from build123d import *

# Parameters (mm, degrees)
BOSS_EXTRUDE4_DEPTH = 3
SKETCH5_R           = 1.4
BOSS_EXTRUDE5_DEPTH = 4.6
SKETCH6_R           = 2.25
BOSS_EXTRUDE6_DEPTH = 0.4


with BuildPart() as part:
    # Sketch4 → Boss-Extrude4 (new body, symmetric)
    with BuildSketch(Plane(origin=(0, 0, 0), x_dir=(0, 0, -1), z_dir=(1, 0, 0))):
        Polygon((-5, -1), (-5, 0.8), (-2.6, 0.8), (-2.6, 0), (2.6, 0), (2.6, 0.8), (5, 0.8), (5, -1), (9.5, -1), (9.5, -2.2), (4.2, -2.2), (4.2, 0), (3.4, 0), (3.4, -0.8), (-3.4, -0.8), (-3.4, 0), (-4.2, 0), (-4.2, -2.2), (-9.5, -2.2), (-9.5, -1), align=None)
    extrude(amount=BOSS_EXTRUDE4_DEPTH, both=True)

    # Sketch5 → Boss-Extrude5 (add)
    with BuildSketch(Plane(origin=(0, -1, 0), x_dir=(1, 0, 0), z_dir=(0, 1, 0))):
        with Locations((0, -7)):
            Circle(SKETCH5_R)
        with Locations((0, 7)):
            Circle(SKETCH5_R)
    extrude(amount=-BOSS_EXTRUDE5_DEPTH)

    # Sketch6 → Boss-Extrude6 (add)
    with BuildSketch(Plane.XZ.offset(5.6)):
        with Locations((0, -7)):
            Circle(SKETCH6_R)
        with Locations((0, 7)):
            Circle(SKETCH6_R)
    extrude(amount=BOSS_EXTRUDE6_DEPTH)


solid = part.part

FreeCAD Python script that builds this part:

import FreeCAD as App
import Part
import Sketcher
Q = App.Units.Quantity

doc = App.newDocument("Part")
params = doc.addObject("Spreadsheet::Sheet", "Params")
for row, (alias, value) in enumerate([
    ("sketch1_width", "1.8 mm"),
    ("sketch1_width2", "1.2 mm"),
    ("sketch1_width3", "2.2 mm"),
    ("sketch1_height", "4.5 mm"),
    ("sketch1_height2", "5.3 mm"),
    ("pad1_length", "6 mm"),
    ("sketch2_diameter", "2.8 mm"),
    ("pad2_length", "4.6 mm"),
    ("sketch3_diameter", "4.5 mm"),
    ("pad3_length", "0.4 mm"),
], start=1):
    params.set(f"A{row}", alias)
    params.set(f"B{row}", "=" + value)
    params.setAlias(f"B{row}", alias)

body = doc.addObject("PartDesign::Body", "Body")

# Sketch on YZ plane
sketch1 = body.newObject("Sketcher::SketchObject", "Sketch")
sketch1.AttachmentSupport = (doc.getObject("YZ_Plane"), [""])
sketch1.MapMode = "FlatFace"
sketch1.addGeometry([
    Part.LineSegment(App.Vector(0.8, 5, 0), App.Vector(-1, 5, 0)),  # 0
    Part.LineSegment(App.Vector(-1, 5, 0), App.Vector(-1, 9.5, 0)),  # 1
    Part.LineSegment(App.Vector(-1, 9.5, 0), App.Vector(-2.2, 9.5, 0)),  # 2
    Part.LineSegment(App.Vector(-2.2, 9.5, 0), App.Vector(-2.2, 4.2, 0)),  # 3
    Part.LineSegment(App.Vector(-2.2, 4.2, 0), App.Vector(0, 4.2, 0)),  # 4
    Part.LineSegment(App.Vector(0, 4.2, 0), App.Vector(0, 3.4, 0)),  # 5
    Part.LineSegment(App.Vector(0, 3.4, 0), App.Vector(-0.8, 3.4, 0)),  # 6
    Part.LineSegment(App.Vector(-0.8, 3.4, 0), App.Vector(-0.8, -3.4, 0)),  # 7
    Part.LineSegment(App.Vector(-0.8, -3.4, 0), App.Vector(0, -3.4, 0)),  # 8
    Part.LineSegment(App.Vector(0, -3.4, 0), App.Vector(0, -4.2, 0)),  # 9
    Part.LineSegment(App.Vector(0, -4.2, 0), App.Vector(-2.2, -4.2, 0)),  # 10
    Part.LineSegment(App.Vector(-2.2, -4.2, 0), App.Vector(-2.2, -9.5, 0)),  # 11
    Part.LineSegment(App.Vector(-2.2, -9.5, 0), App.Vector(-1, -9.5, 0)),  # 12
    Part.LineSegment(App.Vector(-1, -9.5, 0), App.Vector(-1, -5, 0)),  # 13
    Part.LineSegment(App.Vector(-1, -5, 0), App.Vector(0.8, -5, 0)),  # 14
    Part.LineSegment(App.Vector(0.8, -5, 0), App.Vector(0.8, -2.6, 0)),  # 15
    Part.LineSegment(App.Vector(0.8, -2.6, 0), App.Vector(0, -2.6, 0)),  # 16
    Part.LineSegment(App.Vector(0, -2.6, 0), App.Vector(0, 2.6, 0)),  # 17
    Part.LineSegment(App.Vector(0, 2.6, 0), App.Vector(0.8, 2.6, 0)),  # 18
    Part.LineSegment(App.Vector(0.8, 2.6, 0), App.Vector(0.8, 5, 0)),  # 19
], False)
sketch1.addConstraint([
    Sketcher.Constraint("Coincident", 0, 2, 1, 1),
    Sketcher.Constraint("Coincident", 1, 2, 2, 1),
    Sketcher.Constraint("Coincident", 2, 2, 3, 1),
    Sketcher.Constraint("Coincident", 3, 2, 4, 1),
    Sketcher.Constraint("Coincident", 4, 2, 5, 1),
    Sketcher.Constraint("Coincident", 5, 2, 6, 1),
    Sketcher.Constraint("Coincident", 6, 2, 7, 1),
    Sketcher.Constraint("Coincident", 7, 2, 8, 1),
    Sketcher.Constraint("Coincident", 8, 2, 9, 1),
    Sketcher.Constraint("Coincident", 9, 2, 10, 1),
    Sketcher.Constraint("Coincident", 10, 2, 11, 1),
    Sketcher.Constraint("Coincident", 11, 2, 12, 1),
    Sketcher.Constraint("Coincident", 12, 2, 13, 1),
    Sketcher.Constraint("Coincident", 13, 2, 14, 1),
    Sketcher.Constraint("Coincident", 14, 2, 15, 1),
    Sketcher.Constraint("Coincident", 15, 2, 16, 1),
    Sketcher.Constraint("Coincident", 16, 2, 17, 1),
    Sketcher.Constraint("Coincident", 17, 2, 18, 1),
    Sketcher.Constraint("Coincident", 18, 2, 19, 1),
    Sketcher.Constraint("Coincident", 19, 2, 0, 1),
    Sketcher.Constraint("Horizontal", 0),
    Sketcher.Constraint("Vertical", 1),
    Sketcher.Constraint("Horizontal", 2),
    Sketcher.Constraint("Vertical", 3),
    Sketcher.Constraint("Horizontal", 4),
    Sketcher.Constraint("Vertical", 5),
    Sketcher.Constraint("Horizontal", 6),
    Sketcher.Constraint("Vertical", 7),
    Sketcher.Constraint("Horizontal", 8),
    Sketcher.Constraint("Vertical", 9),
    Sketcher.Constraint("Horizontal", 10),
    Sketcher.Constraint("Vertical", 11),
    Sketcher.Constraint("Horizontal", 12),
    Sketcher.Constraint("Vertical", 13),
    Sketcher.Constraint("Horizontal", 14),
    Sketcher.Constraint("Vertical", 15),
    Sketcher.Constraint("Horizontal", 16),
    Sketcher.Constraint("Vertical", 17),
    Sketcher.Constraint("Horizontal", 18),
    Sketcher.Constraint("Vertical", 19),
    Sketcher.Constraint("Symmetric", 5, 2, 8, 2, -1, 1),
    Sketcher.Constraint("Symmetric", 16, 2, 17, 2, -1, 1),
    Sketcher.Constraint("Symmetric", 4, 2, 9, 2, -1),
    Sketcher.Constraint("Symmetric", 2, 2, 11, 2, -1),
    Sketcher.Constraint("Symmetric", 0, 2, 13, 2, -1),
    Sketcher.Constraint("Vertical", 15, 2, 18, 2),
    Sketcher.Constraint("Equal", 8, 16),
    Sketcher.Constraint("Equal", 18, 5),
    Sketcher.Constraint("DistanceX", 0, 2, 0, 1, Q("1.8 mm")),
    Sketcher.Constraint("DistanceX", 2, 2, 2, 1, Q("1.2 mm")),
    Sketcher.Constraint("DistanceX", 4, 1, 4, 2, Q("2.2 mm")),
    Sketcher.Constraint("DistanceY", 1, 1, 1, 2, Q("4.5 mm")),
    Sketcher.Constraint("DistanceY", 3, 2, 3, 1, Q("5.3 mm")),
    Sketcher.Constraint("DistanceY", 7, 2, 7, 1, Q("6.8 mm")),
    Sketcher.Constraint("DistanceY", 15, 1, 15, 2, Q("2.4 mm")),
])
sketch1.setExpression("Constraints[48]", "Params.sketch1_width")
sketch1.setExpression("Constraints[49]", "Params.sketch1_width2")
sketch1.setExpression("Constraints[50]", "Params.sketch1_width3")
sketch1.setExpression("Constraints[51]", "Params.sketch1_height")
sketch1.setExpression("Constraints[52]", "Params.sketch1_height2")
pad1 = body.newObject("PartDesign::Pad", "Pad")
pad1.Profile = sketch1
pad1.setExpression("Length", "Params.pad1_length")
pad1.Midplane = True

# Sketch on XZ plane
sketch2 = body.newObject("Sketcher::SketchObject", "Sketch001")
sketch2.AttachmentSupport = (doc.getObject("XZ_Plane"), [""])
sketch2.MapMode = "FlatFace"
sketch2.AttachmentOffset = App.Placement(App.Vector(0, 0, 1), App.Rotation())
sketch2.addGeometry([
    Part.Circle(App.Vector(0, 7, 0), App.Vector(0, 0, 1), 1.4),
    Part.Circle(App.Vector(0, -7, 0), App.Vector(0, 0, 1), 1.4),
], False)
sketch2.addConstraint([
    Sketcher.Constraint("Equal", 0, 1),
    Sketcher.Constraint("Symmetric", 0, 3, 1, 3, -1, 1),
    Sketcher.Constraint("PointOnObject", 0, 3, -2),
    Sketcher.Constraint("Diameter", 0, Q("2.8 mm")),
    Sketcher.Constraint("DistanceY", -1, 1, 0, 3, Q("7 mm")),
])
sketch2.setExpression("Constraints[3]", "Params.sketch2_diameter")
pad2 = body.newObject("PartDesign::Pad", "Pad001")
pad2.Profile = sketch2
pad2.setExpression("Length", "Params.pad2_length")

# Sketch on XZ plane
sketch3 = body.newObject("Sketcher::SketchObject", "Sketch002")
sketch3.AttachmentSupport = (doc.getObject("XZ_Plane"), [""])
sketch3.MapMode = "FlatFace"
sketch3.AttachmentOffset = App.Placement(App.Vector(0, 0, 5.6), App.Rotation())
sketch3.addGeometry([
    Part.Circle(App.Vector(0, -7, 0), App.Vector(0, 0, 1), 2.2),
    Part.Circle(App.Vector(0, 7, 0), App.Vector(0, 0, 1), 2.2),
], False)
sketch3.addConstraint([
    Sketcher.Constraint("Equal", 0, 1),
    Sketcher.Constraint("Symmetric", 0, 3, 1, 3, -1, 1),
    Sketcher.Constraint("PointOnObject", 0, 3, -2),
    Sketcher.Constraint("Diameter", 0, Q("4.5 mm")),
    Sketcher.Constraint("DistanceY", 0, 3, -1, 1, Q("7 mm")),
])
sketch3.setExpression("Constraints[3]", "Params.sketch3_diameter")
pad3 = body.newObject("PartDesign::Pad", "Pad002")
pad3.Profile = sketch3
pad3.setExpression("Length", "Params.pad3_length")

doc.recompute()
